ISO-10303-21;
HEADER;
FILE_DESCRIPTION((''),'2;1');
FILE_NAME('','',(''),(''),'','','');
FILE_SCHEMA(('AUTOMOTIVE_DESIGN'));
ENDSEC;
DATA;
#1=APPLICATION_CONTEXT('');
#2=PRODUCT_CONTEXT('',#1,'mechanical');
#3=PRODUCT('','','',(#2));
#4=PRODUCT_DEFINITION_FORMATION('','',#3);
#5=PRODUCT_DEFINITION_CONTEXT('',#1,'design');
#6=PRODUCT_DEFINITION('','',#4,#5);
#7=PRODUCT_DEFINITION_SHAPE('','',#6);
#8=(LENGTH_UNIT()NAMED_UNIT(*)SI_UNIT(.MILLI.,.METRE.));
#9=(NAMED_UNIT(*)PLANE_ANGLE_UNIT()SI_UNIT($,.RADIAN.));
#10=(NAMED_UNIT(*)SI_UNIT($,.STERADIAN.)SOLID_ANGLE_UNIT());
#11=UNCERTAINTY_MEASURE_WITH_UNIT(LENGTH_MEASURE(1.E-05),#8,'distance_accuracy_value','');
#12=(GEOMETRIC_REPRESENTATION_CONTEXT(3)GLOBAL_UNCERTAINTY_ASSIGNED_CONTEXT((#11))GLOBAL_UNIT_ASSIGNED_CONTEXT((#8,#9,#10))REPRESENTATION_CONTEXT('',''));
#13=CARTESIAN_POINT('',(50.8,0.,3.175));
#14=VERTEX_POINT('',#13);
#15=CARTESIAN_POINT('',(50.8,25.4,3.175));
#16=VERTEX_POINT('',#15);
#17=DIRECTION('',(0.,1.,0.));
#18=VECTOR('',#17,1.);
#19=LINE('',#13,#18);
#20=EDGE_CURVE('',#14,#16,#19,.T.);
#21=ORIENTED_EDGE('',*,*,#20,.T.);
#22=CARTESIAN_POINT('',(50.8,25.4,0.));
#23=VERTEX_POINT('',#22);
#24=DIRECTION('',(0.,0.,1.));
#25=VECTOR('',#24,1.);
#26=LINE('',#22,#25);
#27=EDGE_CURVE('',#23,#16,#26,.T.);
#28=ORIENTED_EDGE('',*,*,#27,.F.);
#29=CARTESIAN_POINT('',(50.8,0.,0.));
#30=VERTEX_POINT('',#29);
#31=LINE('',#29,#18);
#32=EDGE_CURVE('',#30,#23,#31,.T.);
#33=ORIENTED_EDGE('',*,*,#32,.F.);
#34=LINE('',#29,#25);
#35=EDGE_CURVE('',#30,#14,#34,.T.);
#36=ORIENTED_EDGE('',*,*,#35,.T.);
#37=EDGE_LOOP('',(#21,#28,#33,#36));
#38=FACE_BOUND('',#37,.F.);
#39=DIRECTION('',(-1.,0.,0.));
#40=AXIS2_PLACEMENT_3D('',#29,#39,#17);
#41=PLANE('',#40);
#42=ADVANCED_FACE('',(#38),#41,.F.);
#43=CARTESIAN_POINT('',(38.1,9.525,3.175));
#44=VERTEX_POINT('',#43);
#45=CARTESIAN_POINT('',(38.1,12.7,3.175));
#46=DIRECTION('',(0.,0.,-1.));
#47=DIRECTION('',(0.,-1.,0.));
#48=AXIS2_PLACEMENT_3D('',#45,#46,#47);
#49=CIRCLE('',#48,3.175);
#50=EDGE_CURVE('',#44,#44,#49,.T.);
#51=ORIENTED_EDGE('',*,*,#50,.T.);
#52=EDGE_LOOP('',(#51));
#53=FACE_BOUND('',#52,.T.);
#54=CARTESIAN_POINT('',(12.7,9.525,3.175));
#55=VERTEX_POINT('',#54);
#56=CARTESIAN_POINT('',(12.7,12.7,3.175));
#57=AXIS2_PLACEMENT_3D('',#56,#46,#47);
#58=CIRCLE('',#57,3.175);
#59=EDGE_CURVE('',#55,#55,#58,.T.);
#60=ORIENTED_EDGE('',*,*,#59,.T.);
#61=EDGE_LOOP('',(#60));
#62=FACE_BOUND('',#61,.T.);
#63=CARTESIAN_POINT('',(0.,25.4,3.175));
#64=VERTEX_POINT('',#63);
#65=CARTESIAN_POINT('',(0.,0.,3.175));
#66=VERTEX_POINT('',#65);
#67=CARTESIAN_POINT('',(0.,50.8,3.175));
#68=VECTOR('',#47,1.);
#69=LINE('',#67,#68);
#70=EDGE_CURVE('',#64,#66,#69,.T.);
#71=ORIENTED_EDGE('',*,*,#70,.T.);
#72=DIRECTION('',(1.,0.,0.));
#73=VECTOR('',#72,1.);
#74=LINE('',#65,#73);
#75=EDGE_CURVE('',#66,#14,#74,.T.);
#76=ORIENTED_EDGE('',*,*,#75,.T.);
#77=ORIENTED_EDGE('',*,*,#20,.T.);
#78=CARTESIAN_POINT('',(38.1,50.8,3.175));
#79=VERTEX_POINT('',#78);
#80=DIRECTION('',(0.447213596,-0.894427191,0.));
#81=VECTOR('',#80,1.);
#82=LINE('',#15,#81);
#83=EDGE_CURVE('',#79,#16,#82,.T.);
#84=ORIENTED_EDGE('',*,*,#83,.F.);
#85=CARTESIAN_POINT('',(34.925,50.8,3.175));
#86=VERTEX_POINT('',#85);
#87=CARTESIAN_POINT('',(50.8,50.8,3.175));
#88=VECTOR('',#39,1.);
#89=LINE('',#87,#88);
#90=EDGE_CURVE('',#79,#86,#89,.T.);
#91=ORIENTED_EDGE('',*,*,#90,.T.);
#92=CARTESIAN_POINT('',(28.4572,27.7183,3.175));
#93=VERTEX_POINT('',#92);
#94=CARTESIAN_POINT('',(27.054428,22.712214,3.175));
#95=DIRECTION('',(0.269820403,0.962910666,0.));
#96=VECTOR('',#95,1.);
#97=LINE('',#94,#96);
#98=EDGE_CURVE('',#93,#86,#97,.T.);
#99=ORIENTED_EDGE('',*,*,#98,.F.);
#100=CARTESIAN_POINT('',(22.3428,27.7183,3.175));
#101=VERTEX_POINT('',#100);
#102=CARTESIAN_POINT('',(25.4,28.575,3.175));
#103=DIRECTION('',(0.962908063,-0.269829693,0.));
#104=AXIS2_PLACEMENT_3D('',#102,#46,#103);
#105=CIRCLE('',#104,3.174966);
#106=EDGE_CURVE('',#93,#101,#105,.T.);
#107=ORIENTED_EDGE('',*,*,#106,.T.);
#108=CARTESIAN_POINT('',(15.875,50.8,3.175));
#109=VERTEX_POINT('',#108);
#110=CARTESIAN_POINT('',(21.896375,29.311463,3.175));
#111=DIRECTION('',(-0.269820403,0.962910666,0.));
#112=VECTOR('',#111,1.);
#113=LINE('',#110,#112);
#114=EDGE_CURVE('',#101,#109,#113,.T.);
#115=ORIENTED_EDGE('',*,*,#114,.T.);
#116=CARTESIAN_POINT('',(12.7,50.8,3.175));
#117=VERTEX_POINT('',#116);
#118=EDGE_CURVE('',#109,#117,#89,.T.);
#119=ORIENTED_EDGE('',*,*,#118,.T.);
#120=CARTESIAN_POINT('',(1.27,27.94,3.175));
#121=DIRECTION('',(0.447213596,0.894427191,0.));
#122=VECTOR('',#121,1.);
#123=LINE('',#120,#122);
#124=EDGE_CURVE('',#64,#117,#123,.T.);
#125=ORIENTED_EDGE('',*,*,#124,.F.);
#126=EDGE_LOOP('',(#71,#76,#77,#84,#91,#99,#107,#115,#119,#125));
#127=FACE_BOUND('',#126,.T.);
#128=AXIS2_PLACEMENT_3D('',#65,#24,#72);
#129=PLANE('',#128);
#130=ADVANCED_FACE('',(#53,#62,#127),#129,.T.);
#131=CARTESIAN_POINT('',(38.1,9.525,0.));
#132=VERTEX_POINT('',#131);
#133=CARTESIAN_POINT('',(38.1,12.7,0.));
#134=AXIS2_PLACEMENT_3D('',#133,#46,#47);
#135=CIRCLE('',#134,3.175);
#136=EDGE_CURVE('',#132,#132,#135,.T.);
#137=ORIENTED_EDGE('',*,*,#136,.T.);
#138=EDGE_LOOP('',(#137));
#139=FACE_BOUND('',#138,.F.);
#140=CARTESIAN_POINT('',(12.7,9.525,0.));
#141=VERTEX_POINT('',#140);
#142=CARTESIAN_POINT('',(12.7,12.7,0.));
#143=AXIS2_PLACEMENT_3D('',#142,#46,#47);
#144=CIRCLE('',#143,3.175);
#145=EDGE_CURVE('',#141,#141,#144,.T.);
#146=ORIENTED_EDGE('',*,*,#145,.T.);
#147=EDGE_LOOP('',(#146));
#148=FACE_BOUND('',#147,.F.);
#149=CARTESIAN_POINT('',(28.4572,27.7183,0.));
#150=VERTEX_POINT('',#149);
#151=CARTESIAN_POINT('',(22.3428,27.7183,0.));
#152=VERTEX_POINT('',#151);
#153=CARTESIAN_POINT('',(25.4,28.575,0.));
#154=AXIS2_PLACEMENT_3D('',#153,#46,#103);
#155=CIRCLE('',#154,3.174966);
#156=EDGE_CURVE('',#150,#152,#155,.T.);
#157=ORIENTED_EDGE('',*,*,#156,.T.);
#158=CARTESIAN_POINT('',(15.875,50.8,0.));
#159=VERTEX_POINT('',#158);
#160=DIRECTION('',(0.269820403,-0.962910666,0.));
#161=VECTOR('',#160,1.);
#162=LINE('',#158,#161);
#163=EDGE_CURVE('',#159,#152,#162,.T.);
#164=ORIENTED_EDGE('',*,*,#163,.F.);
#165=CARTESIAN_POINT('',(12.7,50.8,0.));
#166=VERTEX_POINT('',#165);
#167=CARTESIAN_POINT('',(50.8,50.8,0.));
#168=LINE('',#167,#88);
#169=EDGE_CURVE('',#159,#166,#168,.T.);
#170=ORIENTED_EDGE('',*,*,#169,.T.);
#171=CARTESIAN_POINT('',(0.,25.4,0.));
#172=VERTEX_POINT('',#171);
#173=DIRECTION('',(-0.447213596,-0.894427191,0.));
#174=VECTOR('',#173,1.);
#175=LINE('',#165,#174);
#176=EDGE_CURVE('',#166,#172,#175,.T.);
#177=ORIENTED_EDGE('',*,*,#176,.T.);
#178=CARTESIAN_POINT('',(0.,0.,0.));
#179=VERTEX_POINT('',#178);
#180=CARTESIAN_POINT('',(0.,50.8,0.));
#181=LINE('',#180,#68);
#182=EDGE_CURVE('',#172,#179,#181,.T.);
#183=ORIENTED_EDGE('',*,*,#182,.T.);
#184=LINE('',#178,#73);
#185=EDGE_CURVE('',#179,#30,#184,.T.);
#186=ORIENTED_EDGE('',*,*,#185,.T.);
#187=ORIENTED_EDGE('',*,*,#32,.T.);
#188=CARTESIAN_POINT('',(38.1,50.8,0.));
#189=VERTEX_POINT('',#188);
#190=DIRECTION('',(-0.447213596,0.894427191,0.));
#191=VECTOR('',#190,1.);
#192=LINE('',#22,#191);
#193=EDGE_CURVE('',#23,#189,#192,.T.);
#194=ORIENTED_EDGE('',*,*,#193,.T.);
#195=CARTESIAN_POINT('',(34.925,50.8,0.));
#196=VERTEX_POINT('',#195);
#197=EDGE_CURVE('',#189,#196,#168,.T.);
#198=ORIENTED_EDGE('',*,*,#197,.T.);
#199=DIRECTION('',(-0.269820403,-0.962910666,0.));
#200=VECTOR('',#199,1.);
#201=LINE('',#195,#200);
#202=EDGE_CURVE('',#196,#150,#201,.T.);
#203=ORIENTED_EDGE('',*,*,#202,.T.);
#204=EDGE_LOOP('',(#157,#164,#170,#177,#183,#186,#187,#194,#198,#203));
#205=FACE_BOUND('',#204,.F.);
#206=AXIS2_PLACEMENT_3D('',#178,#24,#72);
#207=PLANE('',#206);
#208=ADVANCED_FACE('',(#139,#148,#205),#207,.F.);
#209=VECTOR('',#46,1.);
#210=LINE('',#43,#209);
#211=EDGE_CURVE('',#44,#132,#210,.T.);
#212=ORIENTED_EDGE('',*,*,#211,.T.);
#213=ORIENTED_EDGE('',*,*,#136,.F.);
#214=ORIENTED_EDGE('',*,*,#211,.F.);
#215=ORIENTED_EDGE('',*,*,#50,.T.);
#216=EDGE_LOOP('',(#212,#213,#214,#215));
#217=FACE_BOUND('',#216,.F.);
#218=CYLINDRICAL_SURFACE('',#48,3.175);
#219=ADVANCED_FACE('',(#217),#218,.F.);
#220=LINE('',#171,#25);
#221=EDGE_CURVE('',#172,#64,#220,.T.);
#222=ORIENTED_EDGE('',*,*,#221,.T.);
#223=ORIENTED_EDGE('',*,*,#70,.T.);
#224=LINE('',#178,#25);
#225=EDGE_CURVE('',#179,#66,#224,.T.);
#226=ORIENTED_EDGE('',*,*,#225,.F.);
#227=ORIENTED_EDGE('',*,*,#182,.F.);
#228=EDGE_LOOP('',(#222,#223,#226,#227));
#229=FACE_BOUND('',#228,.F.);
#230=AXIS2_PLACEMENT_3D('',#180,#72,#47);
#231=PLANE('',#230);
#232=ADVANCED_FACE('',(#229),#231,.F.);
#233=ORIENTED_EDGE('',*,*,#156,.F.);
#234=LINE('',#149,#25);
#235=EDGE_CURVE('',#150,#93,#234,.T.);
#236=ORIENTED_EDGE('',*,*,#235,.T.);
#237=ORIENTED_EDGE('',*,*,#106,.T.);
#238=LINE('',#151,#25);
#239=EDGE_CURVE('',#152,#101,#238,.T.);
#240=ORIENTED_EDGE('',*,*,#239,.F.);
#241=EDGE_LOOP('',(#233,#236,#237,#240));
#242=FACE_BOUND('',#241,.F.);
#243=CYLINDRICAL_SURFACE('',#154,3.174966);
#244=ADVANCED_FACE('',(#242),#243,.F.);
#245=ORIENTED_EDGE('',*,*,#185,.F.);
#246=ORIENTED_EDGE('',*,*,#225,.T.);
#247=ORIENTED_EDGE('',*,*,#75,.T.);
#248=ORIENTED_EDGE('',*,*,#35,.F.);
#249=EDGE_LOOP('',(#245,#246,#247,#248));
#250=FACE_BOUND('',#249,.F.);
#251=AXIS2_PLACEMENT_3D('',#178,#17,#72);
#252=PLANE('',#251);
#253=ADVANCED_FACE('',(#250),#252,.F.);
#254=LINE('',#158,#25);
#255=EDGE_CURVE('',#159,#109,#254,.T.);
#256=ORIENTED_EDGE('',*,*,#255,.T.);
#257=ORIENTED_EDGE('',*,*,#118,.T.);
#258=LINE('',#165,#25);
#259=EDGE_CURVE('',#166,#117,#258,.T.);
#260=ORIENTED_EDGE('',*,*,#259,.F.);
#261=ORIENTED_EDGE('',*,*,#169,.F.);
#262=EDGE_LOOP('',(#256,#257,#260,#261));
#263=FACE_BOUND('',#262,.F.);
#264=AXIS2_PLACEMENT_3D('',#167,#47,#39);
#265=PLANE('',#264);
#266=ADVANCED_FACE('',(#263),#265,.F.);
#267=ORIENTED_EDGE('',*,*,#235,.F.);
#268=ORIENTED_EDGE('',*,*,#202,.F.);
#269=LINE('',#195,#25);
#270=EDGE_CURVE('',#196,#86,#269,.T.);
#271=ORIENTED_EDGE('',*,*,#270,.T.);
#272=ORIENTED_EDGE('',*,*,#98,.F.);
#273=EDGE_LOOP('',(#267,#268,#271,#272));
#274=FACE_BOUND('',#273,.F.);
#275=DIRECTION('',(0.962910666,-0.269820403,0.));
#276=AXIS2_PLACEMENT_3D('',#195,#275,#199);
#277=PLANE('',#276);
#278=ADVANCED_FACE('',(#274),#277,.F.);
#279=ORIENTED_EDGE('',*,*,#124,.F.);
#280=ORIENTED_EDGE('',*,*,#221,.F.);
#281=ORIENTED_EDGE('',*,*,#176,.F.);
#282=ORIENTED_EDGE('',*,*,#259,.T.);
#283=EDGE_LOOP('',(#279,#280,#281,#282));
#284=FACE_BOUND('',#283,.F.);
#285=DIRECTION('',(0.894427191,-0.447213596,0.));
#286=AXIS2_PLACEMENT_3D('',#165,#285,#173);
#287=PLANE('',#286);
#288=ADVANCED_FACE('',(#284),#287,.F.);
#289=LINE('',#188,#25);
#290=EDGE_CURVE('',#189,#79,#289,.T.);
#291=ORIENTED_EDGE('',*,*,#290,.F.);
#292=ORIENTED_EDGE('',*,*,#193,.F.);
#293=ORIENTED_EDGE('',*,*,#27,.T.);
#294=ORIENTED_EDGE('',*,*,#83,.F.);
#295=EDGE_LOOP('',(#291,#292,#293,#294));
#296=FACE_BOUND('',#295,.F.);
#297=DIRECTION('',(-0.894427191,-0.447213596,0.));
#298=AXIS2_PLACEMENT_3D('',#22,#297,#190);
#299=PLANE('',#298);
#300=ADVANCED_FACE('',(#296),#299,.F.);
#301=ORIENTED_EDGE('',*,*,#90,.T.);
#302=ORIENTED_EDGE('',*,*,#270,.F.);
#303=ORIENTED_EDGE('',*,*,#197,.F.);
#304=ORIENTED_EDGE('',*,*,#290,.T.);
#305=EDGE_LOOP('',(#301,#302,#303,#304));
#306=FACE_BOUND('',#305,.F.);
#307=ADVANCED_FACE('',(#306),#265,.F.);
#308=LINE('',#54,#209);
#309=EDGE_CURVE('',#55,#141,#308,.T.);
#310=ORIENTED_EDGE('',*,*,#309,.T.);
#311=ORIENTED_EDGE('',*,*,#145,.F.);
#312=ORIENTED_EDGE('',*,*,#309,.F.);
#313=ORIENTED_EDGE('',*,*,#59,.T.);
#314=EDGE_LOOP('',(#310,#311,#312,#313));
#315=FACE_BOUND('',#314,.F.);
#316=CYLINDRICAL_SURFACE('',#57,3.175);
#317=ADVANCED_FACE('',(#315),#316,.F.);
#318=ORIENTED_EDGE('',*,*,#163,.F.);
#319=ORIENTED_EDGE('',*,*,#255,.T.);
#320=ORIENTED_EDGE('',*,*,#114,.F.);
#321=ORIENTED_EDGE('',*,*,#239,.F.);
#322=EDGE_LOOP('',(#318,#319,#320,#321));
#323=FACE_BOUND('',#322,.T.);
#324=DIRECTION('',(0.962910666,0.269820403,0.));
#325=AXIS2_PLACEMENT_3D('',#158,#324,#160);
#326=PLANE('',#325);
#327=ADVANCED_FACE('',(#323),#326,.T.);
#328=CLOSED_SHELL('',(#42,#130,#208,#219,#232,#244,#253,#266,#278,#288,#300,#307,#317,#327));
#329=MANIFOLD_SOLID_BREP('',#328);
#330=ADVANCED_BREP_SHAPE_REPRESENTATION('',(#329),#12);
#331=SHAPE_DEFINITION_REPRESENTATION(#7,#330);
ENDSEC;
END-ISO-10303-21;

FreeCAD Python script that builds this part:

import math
import FreeCAD as App
import Part
import Sketcher
from FreeCAD import Vector
Q = App.Units.Quantity

doc = App.newDocument("Part")
body = doc.addObject("PartDesign::Body", "Body")

# Sketch on XY plane
sketch1 = body.newObject("Sketcher::SketchObject", "Sketch")
sketch1.AttachmentSupport = (doc.getObject("XY_Plane"), [""])
sketch1.MapMode = "FlatFace"
sketch1.addGeometry([
    Part.LineSegment(Vector(0, 51, 0), Vector(0, 0, 0)),
    Part.LineSegment(Vector(0, 0, 0), Vector(51, 0, 0)),
    Part.LineSegment(Vector(51, 0, 0), Vector(51, 51, 0)),
    Part.LineSegment(Vector(51, 51, 0), Vector(0, 51, 0)),
], False)
sketch1.addConstraint([
    Sketcher.Constraint("Coincident", 0, 2, 1, 1),
    Sketcher.Constraint("Coincident", 1, 2, 2, 1),
    Sketcher.Constraint("Coincident", 2, 2, 3, 1),
    Sketcher.Constraint("Coincident", 3, 2, 0, 1),
    Sketcher.Constraint("Vertical", 0),
    Sketcher.Constraint("Horizontal", 1),
    Sketcher.Constraint("Vertical", 2),
    Sketcher.Constraint("Horizontal", 3),
    Sketcher.Constraint("Coincident", 0, 2, -1, 1),
    Sketcher.Constraint("Equal", 3, 0),
    Sketcher.Constraint("DistanceX", 1, 1, 1, 2, Q("2 in")),
])
pad1 = body.newObject("PartDesign::Pad", "Pad")
pad1.Profile = sketch1
pad1.Length = Q("0.125 in")

# Sketch on XY plane
sketch2 = body.newObject("Sketcher::SketchObject", "Sketch001")
sketch2.AttachmentSupport = (doc.getObject("XY_Plane"), [""])
sketch2.MapMode = "FlatFace"
sketch2.AttachmentOffset = App.Placement(Vector(0, 0, 0.125 * 25.4), App.Rotation())
sketch2.addGeometry([
    Part.Circle(Vector(12.7, 12.7, 0), Vector(0, 0, 1), 3.2),
    Part.Circle(Vector(38.1, 12.7, 0), Vector(0, 0, 1), 3.2),
], False)
sketch2.addConstraint([
    Sketcher.Constraint("Equal", 0, 1),
    Sketcher.Constraint("Horizontal", 0, 3, 1, 3),
    Sketcher.Constraint("Diameter", 0, Q("0.25 in")),
    Sketcher.Constraint("DistanceX", 0, 3, 1, 3, Q("1 in")),
    Sketcher.Constraint("DistanceX", -1, 1, 0, 3, Q("0.5 in")),
    Sketcher.Constraint("DistanceY", -1, 1, 0, 3, Q("0.5 in")),
])
doc.recompute()
hole = body.newObject("PartDesign::Hole", "Hole")
hole.Profile = sketch2
hole.ThreadType = "None"
hole.Diameter = Q("0.25 in")
hole.DepthType = "ThroughAll"

# Sketch on XY plane
sketch3 = body.newObject("Sketcher::SketchObject", "Sketch002")
sketch3.AttachmentSupport = (doc.getObject("XY_Plane"), [""])
sketch3.MapMode = "FlatFace"
sketch3.addGeometry([
    Part.LineSegment(Vector(51, 51, 0), Vector(51, 25, 0)),  # 0
    Part.LineSegment(Vector(51, 25, 0), Vector(38, 51, 0)),  # 1
    Part.LineSegment(Vector(38, 51, 0), Vector(51, 51, 0)),  # 2
    Part.LineSegment(Vector(13, 51, 0), Vector(0, 25, 0)),  # 3
    Part.LineSegment(Vector(0, 25, 0), Vector(0, 51, 0)),  # 4
    Part.LineSegment(Vector(0, 51, 0), Vector(13, 51, 0)),  # 5
], False)
sketch3.addConstraint([
    Sketcher.Constraint("Coincident", 0, 2, 1, 1),
    Sketcher.Constraint("Coincident", 1, 2, 2, 1),
    Sketcher.Constraint("Coincident", 2, 2, 0, 1),
    Sketcher.Constraint("Coincident", 3, 2, 4, 1),
    Sketcher.Constraint("Coincident", 4, 2, 5, 1),
    Sketcher.Constraint("Coincident", 5, 2, 3, 1),
    Sketcher.Constraint("Vertical", 0),
    Sketcher.Constraint("Horizontal", 2),
    Sketcher.Constraint("Vertical", 4),
    Sketcher.Constraint("Horizontal", 5),
    Sketcher.Constraint("PointOnObject", 3, 2, -2),
    Sketcher.Constraint("Horizontal", 0, 2, 3, 2),
    Sketcher.Constraint("Horizontal", 2, 2, 4, 2),
    Sketcher.Constraint("Equal", 2, 5),
    Sketcher.Constraint("DistanceY", 0, 2, 0, 1, Q("1 in")),
    Sketcher.Constraint("DistanceX", 2, 1, 2, 2, Q("0.5 in")),
    Sketcher.Constraint("DistanceY", -1, 1, 0, 2, Q("1 in")),
    Sketcher.Constraint("DistanceX", 5, 2, 1, 2, Q("1 in")),
])
pocket1 = body.newObject("PartDesign::Pocket", "Pocket")
pocket1.Profile = sketch3
pocket1.Length = Q("1 in")
pocket1.Reversed = True

# Sketch on XY plane
sketch4 = body.newObject("Sketcher::SketchObject", "Sketch003")
sketch4.AttachmentSupport = (doc.getObject("XY_Plane"), [""])
sketch4.MapMode = "FlatFace"
sketch4.addGeometry([
    Part.LineSegment(Vector(22.3, 27.7, 0), Vector(15.9, 50.8, 0)),
    Part.LineSegment(Vector(15.9, 50.8, 0), Vector(34.9, 50.8, 0)),
    Part.LineSegment(Vector(34.9, 50.8, 0), Vector(28.5, 27.7, 0)),
    Part.ArcOfCircle(Part.Circle(Vector(25.4, 28.6, 0), Vector(0, 0, 1), 3.2), math.radians(-164), math.radians(-16)),
], False)
sketch4.addConstraint([
    Sketcher.Constraint("Coincident", 0, 2, 1, 1),
    Sketcher.Constraint("Coincident", 1, 2, 2, 1),
    Sketcher.Constraint("Tangent", 2, 2, 3, 2),
    Sketcher.Constraint("Tangent", 3, 1, 0, 1),
    Sketcher.Constraint("Horizontal", 1),
    Sketcher.Constraint("Horizontal", 2, 2, 3, 1),
    Sketcher.Constraint("Radius", 3, Q("0.125 in")),
    Sketcher.Constraint("DistanceX", -1, 1, 3, 3, Q("1 in")),
    Sketcher.Constraint("DistanceY", -1, 1, 0, 2, Q("2 in")),
    Sketcher.Constraint("DistanceY", 3, 3, 0, 2, Q("0.875 in")),
    Sketcher.Constraint("DistanceX", 1, 1, 1, 2, Q("0.75 in")),
])
pocket2 = body.newObject("PartDesign::Pocket", "Pocket001")
pocket2.Profile = sketch4
pocket2.Length = Q("1 in")
pocket2.Reversed = True

doc.recompute()
